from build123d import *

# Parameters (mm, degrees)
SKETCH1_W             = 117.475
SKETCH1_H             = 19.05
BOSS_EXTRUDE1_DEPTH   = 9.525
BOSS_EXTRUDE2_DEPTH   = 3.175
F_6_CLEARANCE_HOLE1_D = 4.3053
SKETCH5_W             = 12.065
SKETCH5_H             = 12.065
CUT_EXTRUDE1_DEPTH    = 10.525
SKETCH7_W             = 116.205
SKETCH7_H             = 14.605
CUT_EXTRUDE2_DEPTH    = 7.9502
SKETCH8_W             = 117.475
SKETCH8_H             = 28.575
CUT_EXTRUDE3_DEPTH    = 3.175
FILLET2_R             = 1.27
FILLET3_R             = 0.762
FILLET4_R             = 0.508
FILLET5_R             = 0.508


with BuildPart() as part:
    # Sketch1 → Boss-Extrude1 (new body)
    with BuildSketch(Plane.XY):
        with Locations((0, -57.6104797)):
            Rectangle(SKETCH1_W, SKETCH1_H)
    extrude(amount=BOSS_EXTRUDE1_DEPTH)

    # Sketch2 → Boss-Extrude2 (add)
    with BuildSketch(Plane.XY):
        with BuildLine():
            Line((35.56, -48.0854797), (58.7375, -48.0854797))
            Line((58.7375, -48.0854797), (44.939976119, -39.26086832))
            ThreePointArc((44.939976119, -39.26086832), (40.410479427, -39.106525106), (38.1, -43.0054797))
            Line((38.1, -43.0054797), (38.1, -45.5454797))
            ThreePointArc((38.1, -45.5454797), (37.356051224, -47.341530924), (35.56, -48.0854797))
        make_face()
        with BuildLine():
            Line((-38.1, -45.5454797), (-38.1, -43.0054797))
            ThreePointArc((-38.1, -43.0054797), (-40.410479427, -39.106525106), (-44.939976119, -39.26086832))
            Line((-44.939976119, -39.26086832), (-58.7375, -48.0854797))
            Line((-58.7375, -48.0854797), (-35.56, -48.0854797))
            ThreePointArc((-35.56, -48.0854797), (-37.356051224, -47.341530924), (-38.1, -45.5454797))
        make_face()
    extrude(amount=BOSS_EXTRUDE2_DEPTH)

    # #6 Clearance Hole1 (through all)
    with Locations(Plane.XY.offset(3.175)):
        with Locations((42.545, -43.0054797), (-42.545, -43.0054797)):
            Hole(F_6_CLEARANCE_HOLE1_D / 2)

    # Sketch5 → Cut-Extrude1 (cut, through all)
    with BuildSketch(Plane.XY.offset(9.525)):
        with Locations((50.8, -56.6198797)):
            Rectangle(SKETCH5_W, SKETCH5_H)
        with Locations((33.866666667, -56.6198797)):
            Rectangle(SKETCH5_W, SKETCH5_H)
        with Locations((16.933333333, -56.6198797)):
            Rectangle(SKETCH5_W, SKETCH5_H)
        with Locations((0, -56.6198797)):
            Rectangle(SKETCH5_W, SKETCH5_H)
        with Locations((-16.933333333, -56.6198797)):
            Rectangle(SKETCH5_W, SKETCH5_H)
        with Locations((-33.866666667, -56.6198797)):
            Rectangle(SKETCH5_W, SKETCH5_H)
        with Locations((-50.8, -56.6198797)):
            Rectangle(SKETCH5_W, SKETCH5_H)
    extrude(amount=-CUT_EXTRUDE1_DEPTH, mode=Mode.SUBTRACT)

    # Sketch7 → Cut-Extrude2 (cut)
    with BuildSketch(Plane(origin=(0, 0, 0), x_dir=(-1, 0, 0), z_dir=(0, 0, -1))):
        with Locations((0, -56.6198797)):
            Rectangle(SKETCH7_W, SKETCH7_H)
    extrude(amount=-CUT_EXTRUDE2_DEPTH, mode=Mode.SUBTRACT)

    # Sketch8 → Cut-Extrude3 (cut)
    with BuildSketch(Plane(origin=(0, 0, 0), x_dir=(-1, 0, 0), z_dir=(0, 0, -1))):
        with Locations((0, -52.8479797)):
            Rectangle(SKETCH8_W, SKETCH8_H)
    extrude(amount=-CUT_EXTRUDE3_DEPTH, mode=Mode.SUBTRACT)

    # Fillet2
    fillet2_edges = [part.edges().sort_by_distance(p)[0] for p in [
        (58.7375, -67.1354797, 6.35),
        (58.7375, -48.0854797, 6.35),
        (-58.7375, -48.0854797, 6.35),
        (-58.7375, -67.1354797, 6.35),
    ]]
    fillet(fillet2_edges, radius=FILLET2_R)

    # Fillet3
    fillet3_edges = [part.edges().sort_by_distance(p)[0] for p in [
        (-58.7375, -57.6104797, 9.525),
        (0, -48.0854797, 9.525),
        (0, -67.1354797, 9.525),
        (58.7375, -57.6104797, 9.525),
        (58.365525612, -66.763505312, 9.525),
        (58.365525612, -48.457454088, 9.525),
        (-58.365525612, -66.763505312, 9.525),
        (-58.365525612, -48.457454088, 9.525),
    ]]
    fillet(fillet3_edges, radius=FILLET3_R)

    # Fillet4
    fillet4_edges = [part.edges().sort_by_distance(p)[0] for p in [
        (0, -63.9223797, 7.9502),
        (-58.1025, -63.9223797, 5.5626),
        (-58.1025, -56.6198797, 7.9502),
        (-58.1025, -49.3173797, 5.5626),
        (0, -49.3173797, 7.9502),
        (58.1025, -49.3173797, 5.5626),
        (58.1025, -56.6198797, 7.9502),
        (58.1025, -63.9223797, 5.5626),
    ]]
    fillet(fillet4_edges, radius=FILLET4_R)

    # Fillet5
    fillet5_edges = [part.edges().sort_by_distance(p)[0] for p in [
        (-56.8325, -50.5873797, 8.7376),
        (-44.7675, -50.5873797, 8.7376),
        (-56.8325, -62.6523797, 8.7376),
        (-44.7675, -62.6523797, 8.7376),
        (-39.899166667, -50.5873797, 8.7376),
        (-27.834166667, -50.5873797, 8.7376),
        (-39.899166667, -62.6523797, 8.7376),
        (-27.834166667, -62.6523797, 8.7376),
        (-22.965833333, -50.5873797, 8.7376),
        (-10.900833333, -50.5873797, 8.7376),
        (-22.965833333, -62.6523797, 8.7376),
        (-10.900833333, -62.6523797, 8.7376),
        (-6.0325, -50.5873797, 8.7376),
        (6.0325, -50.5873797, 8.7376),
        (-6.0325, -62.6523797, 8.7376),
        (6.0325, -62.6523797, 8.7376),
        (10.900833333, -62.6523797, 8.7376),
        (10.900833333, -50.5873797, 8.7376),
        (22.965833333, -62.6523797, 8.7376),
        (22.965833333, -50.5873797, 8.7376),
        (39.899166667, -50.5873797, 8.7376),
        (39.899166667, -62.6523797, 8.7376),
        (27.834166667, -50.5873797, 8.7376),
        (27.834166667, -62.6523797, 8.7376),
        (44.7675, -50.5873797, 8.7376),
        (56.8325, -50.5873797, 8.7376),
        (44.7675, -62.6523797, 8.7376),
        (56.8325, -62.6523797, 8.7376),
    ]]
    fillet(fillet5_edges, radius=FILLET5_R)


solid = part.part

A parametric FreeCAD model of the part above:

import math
import FreeCAD as App
import Part
import Sketcher
Q = App.Units.Quantity


def edges_at(feature, points):
    """Names of the edges that pass closest to the given points."""
    edges = feature.Shape.Edges
    near = lambda p: min(range(len(edges)), key=lambda i: edges[i].distToShape(Part.Vertex(*p))[0])
    return sorted({f"Edge{near(p) + 1}" for p in points})


def add_polygon(sketch, points):
    """Adds a closed chain of lines whose ends are joined by coincident constraints."""
    first, n = sketch.GeometryCount, len(points)
    for a, b in zip(points, points[1:] + points[:1]):
        sketch.addGeometry(Part.LineSegment(App.Vector(*a, 0), App.Vector(*b, 0)), False)
    for i in range(n):
        sketch.addConstraint(Sketcher.Constraint("Coincident", first + i, 2, first + (i + 1) % n, 1))

doc = App.newDocument("Part")
body = doc.addObject("PartDesign::Body", "Body")

# Sketch on XY plane
sketch1 = doc.addObject("Sketcher::SketchObject", "Sketch")
body.addObject(sketch1)
sketch1.AttachmentSupport = (doc.XY_Plane, [""])
sketch1.MapMode = "FlatFace"
add_polygon(sketch1, [(-59, -48), (-59, -67), (59, -67), (59, -48)])  # lines 0-3
sketch1.addConstraint(Sketcher.Constraint("Vertical", 0))
sketch1.addConstraint(Sketcher.Constraint("Horizontal", 1))
sketch1.addConstraint(Sketcher.Constraint("Vertical", 2))
sketch1.addConstraint(Sketcher.Constraint("Horizontal", 3))
sketch1.addConstraint(Sketcher.Constraint("DistanceY", 0, 2, 0, 1, Q("0.75 in")))
sketch1.addConstraint(Sketcher.Constraint("DistanceX", 1, 1, 1, 2, Q("4.625 in")))
sketch1.addConstraint(Sketcher.Constraint("DistanceX", 0, 2, -1, 1, Q("2.3125 in")))
sketch1.addConstraint(Sketcher.Constraint("DistanceY", 0, 2, -1, 1, Q("67.13548 mm")))
pad1 = doc.addObject("PartDesign::Pad", "Pad")
body.addObject(pad1)
pad1.Profile = sketch1
pad1.Length = Q("0.375 in")

# Sketch on XY plane
sketch2 = doc.addObject("Sketcher::SketchObject", "Sketch001")
body.addObject(sketch2)
sketch2.AttachmentSupport = (doc.XY_Plane, [""])
sketch2.MapMode = "FlatFace"
sketch2.addGeometry(Part.LineSegment(App.Vector(35.6, -48.1, 0), App.Vector(58.7, -48.1, 0)), False)
sketch2.addGeometry(Part.LineSegment(App.Vector(58.7, -48.1, 0), App.Vector(44.9, -39.3, 0)), False)
sketch2.addGeometry(Part.ArcOfCircle(Part.Circle(App.Vector(42.5, -43, 0), App.Vector(0, 0, 1), 4.4), math.radians(57), math.radians(180)), False)
sketch2.addGeometry(Part.LineSegment(App.Vector(38.1, -43, 0), App.Vector(38.1, -45.5, 0)), False)
sketch2.addGeometry(Part.ArcOfCircle(Part.Circle(App.Vector(35.6, -45.5, 0), App.Vector(0, 0, 1), 2.5), math.radians(-90), math.radians(0)), False)
sketch2.addGeometry(Part.LineSegment(App.Vector(-38.1, -45.5, 0), App.Vector(-38.1, -43, 0)), False)
sketch2.addGeometry(Part.ArcOfCircle(Part.Circle(App.Vector(-42.5, -43, 0), App.Vector(0, 0, 1), 4.4), math.radians(0), math.radians(123)), False)
sketch2.addGeometry(Part.LineSegment(App.Vector(-44.9, -39.3, 0), App.Vector(-58.7, -48.1, 0)), False)
sketch2.addGeometry(Part.LineSegment(App.Vector(-58.7, -48.1, 0), App.Vector(-35.6, -48.1, 0)), False)
sketch2.addGeometry(Part.ArcOfCircle(Part.Circle(App.Vector(-35.6, -45.5, 0), App.Vector(0, 0, 1), 2.5), math.radians(-180), math.radians(-90)), False)
sketch2.addConstraint(Sketcher.Constraint("Coincident", 0, 2, 1, 1))
sketch2.addConstraint(Sketcher.Constraint("Tangent", 1, 2, 2, 1))
sketch2.addConstraint(Sketcher.Constraint("Tangent", 2, 2, 3, 1))
sketch2.addConstraint(Sketcher.Constraint("Tangent", 3, 2, 4, 2))
sketch2.addConstraint(Sketcher.Constraint("Tangent", 4, 1, 0, 1))
sketch2.addConstraint(Sketcher.Constraint("Tangent", 5, 2, 6, 1))
sketch2.addConstraint(Sketcher.Constraint("Tangent", 6, 2, 7, 1))
sketch2.addConstraint(Sketcher.Constraint("Coincident", 7, 2, 8, 1))
sketch2.addConstraint(Sketcher.Constraint("Tangent", 8, 2, 9, 2))
sketch2.addConstraint(Sketcher.Constraint("Tangent", 9, 1, 5, 1))
sketch2.addConstraint(Sketcher.Constraint("Horizontal", 0))
sketch2.addConstraint(Sketcher.Constraint("Vertical", 3))
sketch2.addConstraint(Sketcher.Constraint("Vertical", 5))
sketch2.addConstraint(Sketcher.Constraint("Horizontal", 8))
sketch2.addConstraint(Sketcher.Constraint("Equal", 2, 6))
sketch2.addConstraint(Sketcher.Constraint("Equal", 4, 9))
sketch2.addConstraint(Sketcher.Constraint("Symmetric", 2, 3, 6, 3, -2))
sketch2.addConstraint(Sketcher.Constraint("Symmetric", 0, 2, 7, 2, -2))
sketch2.addConstraint(Sketcher.Constraint("Radius", 4, Q("0.1 in")))
sketch2.addConstraint(Sketcher.Constraint("DistanceY", 3, 2, 3, 1, Q("0.1 in")))
sketch2.addConstraint(Sketcher.Constraint("Radius", 2, Q("0.175 in")))
sketch2.addConstraint(Sketcher.Constraint("DistanceX", 5, 2, 2, 2, Q("3 in")))
sketch2.addConstraint(Sketcher.Constraint("DistanceX", 0, 1, 0, 2, Q("0.9125 in")))
sketch2.addConstraint(Sketcher.Constraint("DistanceY", 2, 3, -1, 1, Q("43.00548 mm")))
pad2 = doc.addObject("PartDesign::Pad", "Pad001")
body.addObject(pad2)
pad2.Profile = sketch2
pad2.Length = Q("0.125 in")

# Sketch on XY plane
sketch3 = doc.addObject("Sketcher::SketchObject", "Sketch002")
body.addObject(sketch3)
sketch3.AttachmentSupport = (doc.XY_Plane, [""])
sketch3.MapMode = "FlatFace"
sketch3.AttachmentOffset = App.Placement(App.Vector(0, 0, 0.125 * 25.4), App.Rotation())
sketch3.addGeometry(Part.Circle(App.Vector(42.5, -43, 0), App.Vector(0, 0, 1), 2.2), False)
sketch3.addGeometry(Part.Circle(App.Vector(-42.5, -43, 0), App.Vector(0, 0, 1), 2.2), False)
sketch3.addConstraint(Sketcher.Constraint("Equal", 0, 1))
sketch3.addConstraint(Sketcher.Constraint("Symmetric", 0, 3, 1, 3, -2))
sketch3.addConstraint(Sketcher.Constraint("Diameter", 0, Q("0.1695 in")))
sketch3.addConstraint(Sketcher.Constraint("DistanceX", 1, 3, 0, 3, Q("3.35 in")))
sketch3.addConstraint(Sketcher.Constraint("DistanceY", 0, 3, -1, 1, Q("43.00548 mm")))
doc.recompute()
hole = doc.addObject("PartDesign::Hole", "Hole")
body.addObject(hole)
hole.Profile = sketch3
hole.ThreadType = "None"
hole.Diameter = Q("0.1695 in")
hole.DepthType = "ThroughAll"

# Sketch on XY plane
sketch4 = doc.addObject("Sketcher::SketchObject", "Sketch003")
body.addObject(sketch4)
sketch4.AttachmentSupport = (doc.XY_Plane, [""])
sketch4.MapMode = "FlatFace"
sketch4.AttachmentOffset = App.Placement(App.Vector(0, 0, 0.375 * 25.4), App.Rotation())
add_polygon(sketch4, [(45, -51), (45, -63), (57, -63), (57, -51)])  # lines 0-3
add_polygon(sketch4, [(28, -51), (28, -63), (40, -63), (40, -51)])  # lines 4-7
add_polygon(sketch4, [(11, -51), (11, -63), (23, -63), (23, -51)])  # lines 8-11
add_polygon(sketch4, [(-6, -51), (-6, -63), (6, -63), (6, -51)])  # lines 12-15
add_polygon(sketch4, [(-23, -51), (-23, -63), (-11, -63), (-11, -51)])  # lines 16-19
add_polygon(sketch4, [(-40, -51), (-40, -63), (-28, -63), (-28, -51)])  # lines 20-23
add_polygon(sketch4, [(-57, -51), (-57, -63), (-45, -63), (-45, -51)])  # lines 24-27
sketch4.addConstraint(Sketcher.Constraint("Vertical", 0))
sketch4.addConstraint(Sketcher.Constraint("Horizontal", 1))
sketch4.addConstraint(Sketcher.Constraint("Vertical", 2))
sketch4.addConstraint(Sketcher.Constraint("Horizontal", 3))
sketch4.addConstraint(Sketcher.Constraint("Vertical", 4))
sketch4.addConstraint(Sketcher.Constraint("Horizontal", 5))
sketch4.addConstraint(Sketcher.Constraint("Vertical", 6))
sketch4.addConstraint(Sketcher.Constraint("Horizontal", 7))
sketch4.addConstraint(Sketcher.Constraint("Vertical", 8))
sketch4.addConstraint(Sketcher.Constraint("Horizontal", 9))
sketch4.addConstraint(Sketcher.Constraint("Vertical", 10))
sketch4.addConstraint(Sketcher.Constraint("Horizontal", 11))
sketch4.addConstraint(Sketcher.Constraint("Vertical", 12))
sketch4.addConstraint(Sketcher.Constraint("Horizontal", 13))
sketch4.addConstraint(Sketcher.Constraint("Vertical", 14))
sketch4.addConstraint(Sketcher.Constraint("Horizontal", 15))
sketch4.addConstraint(Sketcher.Constraint("Vertical", 16))
sketch4.addConstraint(Sketcher.Constraint("Horizontal", 17))
sketch4.addConstraint(Sketcher.Constraint("Vertical", 18))
sketch4.addConstraint(Sketcher.Constraint("Horizontal", 19))
sketch4.addConstraint(Sketcher.Constraint("Vertical", 20))
sketch4.addConstraint(Sketcher.Constraint("Horizontal", 21))
sketch4.addConstraint(Sketcher.Constraint("Vertical", 22))
sketch4.addConstraint(Sketcher.Constraint("Horizontal", 23))
sketch4.addConstraint(Sketcher.Constraint("Vertical", 24))
sketch4.addConstraint(Sketcher.Constraint("Horizontal", 25))
sketch4.addConstraint(Sketcher.Constraint("Vertical", 26))
sketch4.addConstraint(Sketcher.Constraint("Horizontal", 27))
sketch4.addConstraint(Sketcher.Constraint("Symmetric", 9, 2, 16, 2, -2))
sketch4.addConstraint(Sketcher.Constraint("Symmetric", 11, 2, 18, 2, -2))
sketch4.addConstraint(Sketcher.Constraint("Symmetric", 5, 2, 20, 2, -2))
sketch4.addConstraint(Sketcher.Constraint("Symmetric", 7, 2, 22, 2, -2))
sketch4.addConstraint(Sketcher.Constraint("Symmetric", 1, 2, 24, 2, -2))
sketch4.addConstraint(Sketcher.Constraint("Symmetric", 3, 2, 26, 2, -2))
sketch4.addConstraint(Sketcher.Constraint("Horizontal", 1, 2, 4, 2))
sketch4.addConstraint(Sketcher.Constraint("Horizontal", 3, 2, 6, 2))
sketch4.addConstraint(Sketcher.Constraint("Horizontal", 5, 2, 8, 2))
sketch4.addConstraint(Sketcher.Constraint("Horizontal", 7, 2, 10, 2))
sketch4.addConstraint(Sketcher.Constraint("Horizontal", 9, 2, 12, 2))
sketch4.addConstraint(Sketcher.Constraint("Horizontal", 11, 2, 14, 2))
sketch4.addConstraint(Sketcher.Constraint("Equal", 3, 5))
sketch4.addConstraint(Sketcher.Constraint("Equal", 7, 9))
sketch4.addConstraint(Sketcher.Constraint("Equal", 11, 13))
sketch4.addConstraint(Sketcher.Constraint("Equal", 27, 0))
sketch4.addConstraint(Sketcher.Constraint("DistanceX", 1, 1, 1, 2, Q("0.475 in")))
sketch4.addConstraint(Sketcher.Constraint("DistanceX", -1, 1, 0, 2, Q("1.7625 in")))
sketch4.addConstraint(Sketcher.Constraint("DistanceX", 12, 2, -1, 1, Q("0.2375 in")))
sketch4.addConstraint(Sketcher.Constraint("DistanceY", 0, 2, -1, 1, Q("62.65238 mm")))
sketch4.addConstraint(Sketcher.Constraint("DistanceX", -1, 1, 4, 2, Q("27.834167 mm")))
sketch4.addConstraint(Sketcher.Constraint("DistanceX", -1, 1, 8, 2, Q("10.900833 mm")))
pocket1 = doc.addObject("PartDesign::Pocket", "Pocket")
body.addObject(pocket1)
pocket1.Profile = sketch4
pocket1.Type = "ThroughAll"

# Sketch on XY plane
sketch5 = doc.addObject("Sketcher::SketchObject", "Sketch004")
body.addObject(sketch5)
sketch5.AttachmentSupport = (doc.XY_Plane, [""])
sketch5.MapMode = "FlatFace"
add_polygon(sketch5, [(58, -49), (58, -64), (-58, -64), (-58, -49)])  # lines 0-3
sketch5.addConstraint(Sketcher.Constraint("Vertical", 0))
sketch5.addConstraint(Sketcher.Constraint("Horizontal", 1))
sketch5.addConstraint(Sketcher.Constraint("Vertical", 2))
sketch5.addConstraint(Sketcher.Constraint("Horizontal", 3))
sketch5.addConstraint(Sketcher.Constraint("DistanceX", 1, 2, 1, 1, Q("4.575 in")))
sketch5.addConstraint(Sketcher.Constraint("DistanceY", 0, 2, 0, 1, Q("0.575 in")))
sketch5.addConstraint(Sketcher.Constraint("DistanceX", -1, 1, 0, 2, Q("2.2875 in")))
sketch5.addConstraint(Sketcher.Constraint("DistanceY", 0, 2, -1, 1, Q("63.92238 mm")))
pocket2 = doc.addObject("PartDesign::Pocket", "Pocket001")
body.addObject(pocket2)
pocket2.Profile = sketch5
pocket2.Length = Q("0.313 in")
pocket2.Reversed = True

# Sketch on XY plane
sketch6 = doc.addObject("Sketcher::SketchObject", "Sketch005")
body.addObject(sketch6)
sketch6.AttachmentSupport = (doc.XY_Plane, [""])
sketch6.MapMode = "FlatFace"
add_polygon(sketch6, [(59, -39), (59, -67), (-59, -67), (-59, -39)])  # lines 0-3
sketch6.addConstraint(Sketcher.Constraint("Vertical", 0))
sketch6.addConstraint(Sketcher.Constraint("Horizontal", 1))
sketch6.addConstraint(Sketcher.Constraint("Vertical", 2))
sketch6.addConstraint(Sketcher.Constraint("Horizontal", 3))
sketch6.addConstraint(Sketcher.Constraint("DistanceX", 1, 2, 1, 1, Q("4.625 in")))
sketch6.addConstraint(Sketcher.Constraint("DistanceY", 0, 2, 0, 1, Q("1.125 in")))
sketch6.addConstraint(Sketcher.Constraint("DistanceX", -1, 1, 0, 2, Q("2.3125 in")))
sketch6.addConstraint(Sketcher.Constraint("DistanceY", 0, 2, -1, 1, Q("67.13548 mm")))
pocket3 = doc.addObject("PartDesign::Pocket", "Pocket002")
body.addObject(pocket3)
pocket3.Profile = sketch6
pocket3.Length = Q("0.125 in")
pocket3.Reversed = True
doc.recompute()

fillet = doc.addObject("PartDesign::Fillet", "Fillet")
body.addObject(fillet)
fillet.Base = (pocket3, edges_at(pocket3, [
    (58.737, -67.135, 6.35),
    (58.737, -48.085, 6.35),
    (-58.737, -48.085, 6.35),
    (-58.737, -67.135, 6.35),
]))
fillet.Radius = Q("0.05 in")
doc.recompute()

fillet2 = doc.addObject("PartDesign::Fillet", "Fillet001")
body.addObject(fillet2)
fillet2.Base = (fillet, edges_at(fillet, [
    (-58.737, -57.61, 9.525),
    (0, -48.085, 9.525),
    (0, -67.135, 9.525),
    (58.737, -57.61, 9.525),
    (58.366, -66.764, 9.525),
    (58.366, -48.457, 9.525),
    (-58.366, -66.764, 9.525),
    (-58.366, -48.457, 9.525),
]))
fillet2.Radius = Q("0.03 in")
doc.recompute()

fillet3 = doc.addObject("PartDesign::Fillet", "Fillet002")
body.addObject(fillet3)
fillet3.Base = (fillet2, edges_at(fillet2, [
    (0, -63.922, 7.95),
    (-58.102, -63.922, 5.563),
    (-58.102, -56.62, 7.95),
    (-58.102, -49.317, 5.563),
    (0, -49.317, 7.95),
    (58.102, -49.317, 5.563),
    (58.102, -56.62, 7.95),
    (58.102, -63.922, 5.563),
]))
fillet3.Radius = Q("0.02 in")
doc.recompute()

fillet4 = doc.addObject("PartDesign::Fillet", "Fillet003")
body.addObject(fillet4)
fillet4.Base = (fillet3, edges_at(fillet3, [
    (-56.833, -50.587, 8.738),
    (-44.767, -50.587, 8.738),
    (-56.833, -62.652, 8.738),
    (-44.767, -62.652, 8.738),
    (-39.899, -50.587, 8.738),
    (-27.834, -50.587, 8.738),
    (-39.899, -62.652, 8.738),
    (-27.834, -62.652, 8.738),
    (-22.966, -50.587, 8.738),
    (-10.901, -50.587, 8.738),
    (-22.966, -62.652, 8.738),
    (-10.901, -62.652, 8.738),
    (-6.032, -50.587, 8.738),
    (6.032, -50.587, 8.738),
    (-6.032, -62.652, 8.738),
    (6.032, -62.652, 8.738),
    (10.901, -62.652, 8.738),
    (10.901, -50.587, 8.738),
    (22.966, -62.652, 8.738),
    (22.966, -50.587, 8.738),
    (39.899, -50.587, 8.738),
    (39.899, -62.652, 8.738),
    (27.834, -50.587, 8.738),
    (27.834, -62.652, 8.738),
    (44.767, -50.587, 8.738),
    (56.833, -50.587, 8.738),
    (44.767, -62.652, 8.738),
    (56.833, -62.652, 8.738),
]))
fillet4.Radius = Q("0.02 in")

doc.recompute()
